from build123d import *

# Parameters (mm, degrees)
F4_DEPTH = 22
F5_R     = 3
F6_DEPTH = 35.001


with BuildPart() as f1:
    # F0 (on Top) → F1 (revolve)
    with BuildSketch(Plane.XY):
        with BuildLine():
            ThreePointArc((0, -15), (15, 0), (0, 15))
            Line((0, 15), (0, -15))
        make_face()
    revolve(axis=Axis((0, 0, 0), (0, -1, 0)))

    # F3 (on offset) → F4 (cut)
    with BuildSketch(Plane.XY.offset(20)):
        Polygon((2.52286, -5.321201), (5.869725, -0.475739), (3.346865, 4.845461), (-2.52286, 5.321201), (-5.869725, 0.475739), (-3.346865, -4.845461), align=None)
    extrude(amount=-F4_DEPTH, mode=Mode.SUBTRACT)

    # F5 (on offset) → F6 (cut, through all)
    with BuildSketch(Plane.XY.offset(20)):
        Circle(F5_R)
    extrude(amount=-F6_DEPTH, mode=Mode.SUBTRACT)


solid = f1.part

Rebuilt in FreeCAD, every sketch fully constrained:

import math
import FreeCAD as App
import Part
import Sketcher
from FreeCAD import Vector

doc = App.newDocument("Part")
params = doc.addObject("Spreadsheet::Sheet", "Params")
for row, (alias, value) in enumerate([
    ("sketch1_radius", "15 mm"),
    ("revolution_angle", "360 deg"),
    ("pocket1_length", "22 mm"),
    ("sketch3_diameter", "6 mm"),
], start=1):
    params.set(f"A{row}", alias)
    params.set(f"B{row}", "=" + value)
    params.setAlias(f"B{row}", alias)

body = doc.addObject("PartDesign::Body", "Body")

# Sketch on XY plane
sketch1 = doc.addObject("Sketcher::SketchObject", "Sketch")
body.addObject(sketch1)
sketch1.AttachmentSupport = (doc.XY_Plane, [""])
sketch1.MapMode = "FlatFace"
sketch1.addGeometry(Part.ArcOfCircle(Part.Circle(Vector(0, 0, 0), Vector(0, 0, 1), 15), math.radians(-90), math.radians(90)), False)
sketch1.addGeometry(Part.LineSegment(Vector(0, 15, 0), Vector(0, -15, 0)), False)
sketch1.addConstraint(Sketcher.Constraint("Coincident", 0, 1, 1, 2))
sketch1.addConstraint(Sketcher.Constraint("Coincident", 1, 1, 0, 2))
sketch1.addConstraint(Sketcher.Constraint("Vertical", 1))
sketch1.addConstraint(Sketcher.Constraint("Coincident", 0, 3, -1, 1))
sketch1.addConstraint(Sketcher.Constraint("PointOnObject", 0, 1, -2))
sketch1.addConstraint(Sketcher.Constraint("Radius", 0, 15.0))
sketch1.setExpression("Constraints[5]", "Params.sketch1_radius")
revolution = doc.addObject("PartDesign::Revolution", "Revolution")
body.addObject(revolution)
revolution.Profile = sketch1
revolution.ReferenceAxis = (sketch1, ["V_Axis"])
revolution.setExpression("Angle", "Params.revolution_angle")

# Sketch on XY plane
sketch2 = doc.addObject("Sketcher::SketchObject", "Sketch001")
body.addObject(sketch2)
sketch2.AttachmentSupport = (doc.XY_Plane, [""])
sketch2.MapMode = "FlatFace"
sketch2.AttachmentOffset = App.Placement(Vector(0, 0, 20), App.Rotation())
sketch2.addGeometry(Part.LineSegment(Vector(2.52286, -5.321201, 0), Vector(5.869725, -0.475739, 0)), False)
sketch2.addGeometry(Part.LineSegment(Vector(5.869725, -0.475739, 0), Vector(3.346865, 4.845461, 0)), False)
sketch2.addGeometry(Part.LineSegment(Vector(3.346865, 4.845461, 0), Vector(-2.52286, 5.321201, 0)), False)
sketch2.addGeometry(Part.LineSegment(Vector(-2.52286, 5.321201, 0), Vector(-5.869725, 0.475739, 0)), False)
sketch2.addGeometry(Part.LineSegment(Vector(-5.869725, 0.475739, 0), Vector(-3.346865, -4.845461, 0)), False)
sketch2.addGeometry(Part.LineSegment(Vector(-3.346865, -4.845461, 0), Vector(2.52286, -5.321201, 0)), False)
sketch2.addConstraint(Sketcher.Constraint("Coincident", 0, 2, 1, 1))
sketch2.addConstraint(Sketcher.Constraint("Coincident", 1, 2, 2, 1))
sketch2.addConstraint(Sketcher.Constraint("Coincident", 2, 2, 3, 1))
sketch2.addConstraint(Sketcher.Constraint("Coincident", 3, 2, 4, 1))
sketch2.addConstraint(Sketcher.Constraint("Coincident", 4, 2, 5, 1))
sketch2.addConstraint(Sketcher.Constraint("Coincident", 5, 2, 0, 1))
sketch2.addConstraint(Sketcher.Constraint("Symmetric", 0, 2, 3, 2, -1, 1))
sketch2.addConstraint(Sketcher.Constraint("Symmetric", 1, 2, 4, 2, -1, 1))
sketch2.addConstraint(Sketcher.Constraint("Symmetric", 2, 2, 5, 2, -1, 1))
sketch2.addConstraint(Sketcher.Constraint("Equal", 0, 1))
sketch2.addConstraint(Sketcher.Constraint("Equal", 1, 2))
sketch2.addConstraint(Sketcher.Constraint("DistanceY", -1, 1, 2, 2, 5.321201))
sketch2.addConstraint(Sketcher.Constraint("DistanceY", 0, 2, 1, 2, 5.3212))
sketch2.addConstraint(Sketcher.Constraint("DistanceY", 0, 2, -1, 1, 0.475739))
sketch2.addConstraint(Sketcher.Constraint("DistanceX", 2, 2, -1, 1, 2.52286))
pocket1 = doc.addObject("PartDesign::Pocket", "Pocket")
body.addObject(pocket1)
pocket1.Profile = sketch2
pocket1.setExpression("Length", "Params.pocket1_length")

# Sketch on XY plane
sketch3 = doc.addObject("Sketcher::SketchObject", "Sketch002")
body.addObject(sketch3)
sketch3.AttachmentSupport = (doc.XY_Plane, [""])
sketch3.MapMode = "FlatFace"
sketch3.AttachmentOffset = App.Placement(Vector(0, 0, 20), App.Rotation())
sketch3.addGeometry(Part.Circle(Vector(0, 0, 0), Vector(0, 0, 1), 3), False)
sketch3.addConstraint(Sketcher.Constraint("Coincident", 0, 3, -1, 1))
sketch3.addConstraint(Sketcher.Constraint("Diameter", 0, 6.0))
sketch3.setExpression("Constraints[1]", "Params.sketch3_diameter")
pocket2 = doc.addObject("PartDesign::Pocket", "Pocket001")
body.addObject(pocket2)
pocket2.Profile = sketch3
pocket2.Type = "ThroughAll"

doc.recompute()
